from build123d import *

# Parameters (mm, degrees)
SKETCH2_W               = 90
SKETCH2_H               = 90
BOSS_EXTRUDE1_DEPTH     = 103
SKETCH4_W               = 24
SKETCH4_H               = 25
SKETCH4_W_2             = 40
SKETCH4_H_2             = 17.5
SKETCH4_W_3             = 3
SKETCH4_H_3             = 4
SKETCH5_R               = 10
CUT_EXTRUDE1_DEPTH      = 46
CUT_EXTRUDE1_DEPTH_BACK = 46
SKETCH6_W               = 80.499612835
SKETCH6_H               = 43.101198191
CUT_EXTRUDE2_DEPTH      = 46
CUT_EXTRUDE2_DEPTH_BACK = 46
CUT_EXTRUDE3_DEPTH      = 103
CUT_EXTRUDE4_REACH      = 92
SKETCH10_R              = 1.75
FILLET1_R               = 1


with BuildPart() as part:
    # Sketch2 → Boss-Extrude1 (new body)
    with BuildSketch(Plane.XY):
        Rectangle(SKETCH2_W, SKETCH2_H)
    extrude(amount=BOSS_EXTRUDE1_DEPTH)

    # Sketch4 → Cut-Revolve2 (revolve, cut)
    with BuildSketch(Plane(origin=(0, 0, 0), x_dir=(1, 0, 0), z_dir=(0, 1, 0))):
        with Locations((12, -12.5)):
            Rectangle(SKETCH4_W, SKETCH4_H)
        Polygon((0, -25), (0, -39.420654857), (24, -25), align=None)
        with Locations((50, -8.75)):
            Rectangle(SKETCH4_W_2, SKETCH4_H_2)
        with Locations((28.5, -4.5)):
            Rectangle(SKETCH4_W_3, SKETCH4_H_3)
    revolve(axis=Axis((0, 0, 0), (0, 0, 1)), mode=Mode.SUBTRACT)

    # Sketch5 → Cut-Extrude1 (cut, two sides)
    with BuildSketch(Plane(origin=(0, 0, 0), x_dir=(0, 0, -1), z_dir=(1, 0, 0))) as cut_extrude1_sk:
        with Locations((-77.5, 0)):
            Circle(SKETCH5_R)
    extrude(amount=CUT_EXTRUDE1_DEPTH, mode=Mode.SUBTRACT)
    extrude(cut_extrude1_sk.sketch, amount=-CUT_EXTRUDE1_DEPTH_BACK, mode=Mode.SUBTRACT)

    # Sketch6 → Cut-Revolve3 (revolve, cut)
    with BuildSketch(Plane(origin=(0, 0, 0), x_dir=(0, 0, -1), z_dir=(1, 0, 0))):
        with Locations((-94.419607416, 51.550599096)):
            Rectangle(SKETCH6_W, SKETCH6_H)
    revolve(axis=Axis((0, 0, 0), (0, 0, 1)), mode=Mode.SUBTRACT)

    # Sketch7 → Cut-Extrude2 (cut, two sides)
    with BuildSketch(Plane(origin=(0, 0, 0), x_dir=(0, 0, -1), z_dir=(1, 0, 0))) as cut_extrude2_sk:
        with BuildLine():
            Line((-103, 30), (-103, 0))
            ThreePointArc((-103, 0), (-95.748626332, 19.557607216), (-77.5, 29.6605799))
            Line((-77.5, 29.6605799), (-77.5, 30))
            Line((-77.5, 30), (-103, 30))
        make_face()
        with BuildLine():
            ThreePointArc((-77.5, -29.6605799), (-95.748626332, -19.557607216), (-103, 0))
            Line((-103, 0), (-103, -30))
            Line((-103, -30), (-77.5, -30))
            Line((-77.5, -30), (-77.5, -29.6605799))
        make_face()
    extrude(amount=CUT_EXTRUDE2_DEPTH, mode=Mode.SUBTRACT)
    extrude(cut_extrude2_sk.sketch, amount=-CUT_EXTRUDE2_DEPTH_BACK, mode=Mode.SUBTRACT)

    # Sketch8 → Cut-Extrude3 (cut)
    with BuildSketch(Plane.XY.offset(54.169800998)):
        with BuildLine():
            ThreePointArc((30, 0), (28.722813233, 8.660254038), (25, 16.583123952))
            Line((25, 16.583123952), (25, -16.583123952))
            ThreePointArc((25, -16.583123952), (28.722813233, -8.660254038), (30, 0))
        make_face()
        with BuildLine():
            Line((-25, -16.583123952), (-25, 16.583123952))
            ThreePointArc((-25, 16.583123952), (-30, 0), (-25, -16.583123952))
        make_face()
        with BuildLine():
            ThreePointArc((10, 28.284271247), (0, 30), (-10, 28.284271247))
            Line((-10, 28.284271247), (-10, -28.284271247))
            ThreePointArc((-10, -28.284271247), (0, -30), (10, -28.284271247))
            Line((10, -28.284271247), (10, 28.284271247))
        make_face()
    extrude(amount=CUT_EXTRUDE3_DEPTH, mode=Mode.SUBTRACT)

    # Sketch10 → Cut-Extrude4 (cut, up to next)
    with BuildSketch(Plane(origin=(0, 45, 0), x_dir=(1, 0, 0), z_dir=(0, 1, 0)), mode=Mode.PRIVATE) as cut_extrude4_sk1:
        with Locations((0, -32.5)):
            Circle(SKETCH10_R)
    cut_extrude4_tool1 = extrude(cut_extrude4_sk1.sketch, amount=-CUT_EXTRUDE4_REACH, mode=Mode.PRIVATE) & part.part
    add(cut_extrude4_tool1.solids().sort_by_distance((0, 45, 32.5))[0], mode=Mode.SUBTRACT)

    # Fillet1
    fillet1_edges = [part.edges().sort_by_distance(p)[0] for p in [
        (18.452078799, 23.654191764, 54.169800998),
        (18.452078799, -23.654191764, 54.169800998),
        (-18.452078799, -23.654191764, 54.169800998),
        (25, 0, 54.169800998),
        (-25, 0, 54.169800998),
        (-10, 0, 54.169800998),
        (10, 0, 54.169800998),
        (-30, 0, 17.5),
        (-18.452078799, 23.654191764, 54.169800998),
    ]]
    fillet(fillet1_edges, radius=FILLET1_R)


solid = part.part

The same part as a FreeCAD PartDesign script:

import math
import FreeCAD as App
import Part
import Sketcher
Q = App.Units.Quantity


def edges_at(feature, points):
    """Names of the edges that pass closest to the given points."""
    edges = feature.Shape.Edges
    near = lambda p: min(range(len(edges)), key=lambda i: edges[i].distToShape(Part.Vertex(*p))[0])
    return sorted({f"Edge{near(p) + 1}" for p in points})


def add_polygon(sketch, points):
    """Adds a closed chain of lines whose ends are joined by coincident constraints."""
    first, n = sketch.GeometryCount, len(points)
    for a, b in zip(points, points[1:] + points[:1]):
        sketch.addGeometry(Part.LineSegment(App.Vector(*a, 0), App.Vector(*b, 0)), False)
    for i in range(n):
        sketch.addConstraint(Sketcher.Constraint("Coincident", first + i, 2, first + (i + 1) % n, 1))

doc = App.newDocument("Part")
body = doc.addObject("PartDesign::Body", "Body")

# Sketch on XY plane
sketch1 = doc.addObject("Sketcher::SketchObject", "Sketch")
body.addObject(sketch1)
sketch1.AttachmentSupport = (doc.XY_Plane, [""])
sketch1.MapMode = "FlatFace"
add_polygon(sketch1, [(-45, 45), (-45, -45), (45, -45), (45, 45)])  # lines 0-3
sketch1.addConstraint([
    Sketcher.Constraint("Vertical", 0),
    Sketcher.Constraint("Horizontal", 1),
    Sketcher.Constraint("Vertical", 2),
    Sketcher.Constraint("Horizontal", 3),
    Sketcher.Constraint("Symmetric", 0, 2, 2, 2, -1, 1),
    Sketcher.Constraint("Equal", 3, 0),
    Sketcher.Constraint("DistanceX", 1, 1, 1, 2, 90.0),
])
pad1 = doc.addObject("PartDesign::Pad", "Pad")
body.addObject(pad1)
pad1.Profile = sketch1
pad1.Length = 103

# Sketch on XZ plane
sketch2 = doc.addObject("Sketcher::SketchObject", "Sketch001")
body.addObject(sketch2)
sketch2.AttachmentSupport = (doc.XZ_Plane, [""])
sketch2.MapMode = "FlatFace"
add_polygon(sketch2, [(0, 0), (0, 39.4), (24, 25), (24, 0)])  # lines 0-3
add_polygon(sketch2, [(30, 6.5), (30, 17.5), (70, 17.5), (70, 0), (30, 0), (30, 2.5), (27, 2.5), (27, 6.5)])  # lines 4-11
sketch2.addConstraint([
    Sketcher.Constraint("Vertical", 0),
    Sketcher.Constraint("Vertical", 2),
    Sketcher.Constraint("Horizontal", 3),
    Sketcher.Constraint("Vertical", 4),
    Sketcher.Constraint("Horizontal", 5),
    Sketcher.Constraint("Vertical", 6),
    Sketcher.Constraint("Horizontal", 7),
    Sketcher.Constraint("Vertical", 8),
    Sketcher.Constraint("Horizontal", 9),
    Sketcher.Constraint("Vertical", 10),
    Sketcher.Constraint("Horizontal", 11),
    Sketcher.Constraint("Coincident", 3, 2, -1, 1),
    Sketcher.Constraint("PointOnObject", 6, 2, -1),
    Sketcher.Constraint("Vertical", 4, 2, 7, 2),
    Sketcher.Constraint("DistanceX", 3, 2, 3, 1, 24.0),
    Sketcher.Constraint("DistanceX", 5, 1, 5, 2, 40.0),
    Sketcher.Constraint("DistanceX", 9, 2, 9, 1, 3.0),
    Sketcher.Constraint("DistanceY", 2, 2, 2, 1, 25.0),
    Sketcher.Constraint("DistanceY", 4, 1, 4, 2, 11.0),
    Sketcher.Constraint("DistanceY", 10, 1, 10, 2, 4.0),
    Sketcher.Constraint("Angle", 1, Q("-31 deg")),
    Sketcher.Constraint("DistanceY", 6, 2, 6, 1, 17.5),
    Sketcher.Constraint("DistanceX", -1, 1, 4, 2, 30.0),
])
groove = doc.addObject("PartDesign::Groove", "Groove")
body.addObject(groove)
groove.Profile = sketch2
groove.ReferenceAxis = (sketch2, ["V_Axis"])
groove.Angle = 360

# Sketch on YZ plane
sketch3 = doc.addObject("Sketcher::SketchObject", "Sketch002")
body.addObject(sketch3)
sketch3.AttachmentSupport = (doc.YZ_Plane, [""])
sketch3.MapMode = "FlatFace"
sketch3.addGeometry(Part.Circle(App.Vector(0, 78, 0), App.Vector(0, 0, 1), 10), False)
sketch3.addConstraint([
    Sketcher.Constraint("PointOnObject", 0, 3, -2),
    Sketcher.Constraint("Diameter", 0, 20.0),
    Sketcher.Constraint("DistanceY", -1, 1, 0, 3, 77.5),
])
pocket1 = doc.addObject("PartDesign::Pocket", "Pocket")
body.addObject(pocket1)
pocket1.Profile = sketch3
pocket1.Type = "ThroughAll"
pocket1.Midplane = True

# Sketch on YZ plane
sketch4 = doc.addObject("Sketcher::SketchObject", "Sketch003")
body.addObject(sketch4)
sketch4.AttachmentSupport = (doc.YZ_Plane, [""])
sketch4.MapMode = "FlatFace"
add_polygon(sketch4, [(73, 135), (30, 135), (30, 54), (73, 54)])  # lines 0-3
sketch4.addConstraint([
    Sketcher.Constraint("Horizontal", 0),
    Sketcher.Constraint("Vertical", 1),
    Sketcher.Constraint("Horizontal", 2),
    Sketcher.Constraint("Vertical", 3),
    Sketcher.Constraint("DistanceX", -1, 1, 0, 2, 30.0),
    Sketcher.Constraint("DistanceX", 0, 2, 0, 1, 43.101198),
    Sketcher.Constraint("DistanceY", -1, 1, 1, 2, 54.169801),
    Sketcher.Constraint("DistanceY", 1, 2, 1, 1, 80.499613),
])
groove2 = doc.addObject("PartDesign::Groove", "Groove001")
body.addObject(groove2)
groove2.Profile = sketch4
groove2.ReferenceAxis = (sketch4, ["V_Axis"])
groove2.Angle = 360

# Sketch on YZ plane
sketch5 = doc.addObject("Sketcher::SketchObject", "Sketch004")
body.addObject(sketch5)
sketch5.AttachmentSupport = (doc.YZ_Plane, [""])
sketch5.MapMode = "FlatFace"
sketch5.addGeometry([
    Part.LineSegment(App.Vector(30, 103, 0), App.Vector(0, 103, 0)),  # 0
    Part.ArcOfCircle(Part.Circle(App.Vector(0, 73, 0), App.Vector(0, 0, 1), 30), math.radians(9), math.radians(90)),  # 1
    Part.LineSegment(App.Vector(29.66, 77.5, 0), App.Vector(30, 77.5, 0)),  # 2
    Part.LineSegment(App.Vector(30, 77.5, 0), App.Vector(30, 103, 0)),  # 3
    Part.ArcOfCircle(Part.Circle(App.Vector(0, 73, 0), App.Vector(0, 0, 1), 30), math.radians(90), math.radians(171)),  # 4
    Part.LineSegment(App.Vector(0, 103, 0), App.Vector(-30, 103, 0)),  # 5
    Part.LineSegment(App.Vector(-30, 103, 0), App.Vector(-30, 77.5, 0)),  # 6
    Part.LineSegment(App.Vector(-30, 77.5, 0), App.Vector(-29.66, 77.5, 0)),  # 7
], False)
sketch5.addConstraint([
    Sketcher.Constraint("Tangent", 0, 2, 1, 2),
    Sketcher.Constraint("Coincident", 1, 1, 2, 1),
    Sketcher.Constraint("Coincident", 2, 2, 3, 1),
    Sketcher.Constraint("Coincident", 3, 2, 0, 1),
    Sketcher.Constraint("Tangent", 4, 1, 5, 1),
    Sketcher.Constraint("Coincident", 5, 2, 6, 1),
    Sketcher.Constraint("Coincident", 6, 2, 7, 1),
    Sketcher.Constraint("Coincident", 7, 2, 4, 2),
    Sketcher.Constraint("Horizontal", 0),
    Sketcher.Constraint("Horizontal", 2),
    Sketcher.Constraint("Vertical", 3),
    Sketcher.Constraint("Horizontal", 5),
    Sketcher.Constraint("Vertical", 6),
    Sketcher.Constraint("Horizontal", 7),
    Sketcher.Constraint("Coincident", 4, 3, 1, 3),
    Sketcher.Constraint("Equal", 1, 4),
    Sketcher.Constraint("Symmetric", 2, 2, 6, 2, -2),
    Sketcher.Constraint("PointOnObject", 1, 3, -2),
    Sketcher.Constraint("Radius", 1, 30.0),
    Sketcher.Constraint("DistanceX", 0, 2, 0, 1, 30.0),
    Sketcher.Constraint("DistanceY", 3, 1, 3, 2, 25.5),
    Sketcher.Constraint("DistanceY", -1, 1, 1, 3, 73.0),
])
pocket2 = doc.addObject("PartDesign::Pocket", "Pocket001")
body.addObject(pocket2)
pocket2.Profile = sketch5
pocket2.Type = "ThroughAll"
pocket2.Midplane = True

# Sketch on XY plane
sketch6 = doc.addObject("Sketcher::SketchObject", "Sketch005")
body.addObject(sketch6)
sketch6.AttachmentSupport = (doc.XY_Plane, [""])
sketch6.MapMode = "FlatFace"
sketch6.AttachmentOffset = App.Placement(App.Vector(0, 0, 54.169801), App.Rotation())
sketch6.addGeometry([
    Part.ArcOfCircle(Part.Circle(App.Vector(0, 0, 0), App.Vector(0, 0, 1), 30), math.radians(0), math.radians(34)),  # 0
    Part.LineSegment(App.Vector(25, 17, 0), App.Vector(25, -17, 0)),  # 1
    Part.ArcOfCircle(Part.Circle(App.Vector(0, 0, 0), App.Vector(0, 0, 1), 30), math.radians(-34), math.radians(0)),  # 2
    Part.LineSegment(App.Vector(-25, -17, 0), App.Vector(-25, 17, 0)),  # 3
    Part.ArcOfCircle(Part.Circle(App.Vector(0, 0, 0), App.Vector(0, 0, 1), 30), math.radians(146), math.radians(214)),  # 4
    Part.ArcOfCircle(Part.Circle(App.Vector(0, 0, 0), App.Vector(0, 0, 1), 30), math.radians(71), math.radians(109)),  # 5
    Part.LineSegment(App.Vector(-10, 28, 0), App.Vector(-10, -28, 0)),  # 6
    Part.ArcOfCircle(Part.Circle(App.Vector(0, 0, 0), App.Vector(0, 0, 1), 30), math.radians(-109), math.radians(-71)),  # 7
    Part.LineSegment(App.Vector(10, -28, 0), App.Vector(10, 28, 0)),  # 8
], False)
sketch6.addConstraint([
    Sketcher.Constraint("Coincident", 0, 2, 1, 1),
    Sketcher.Constraint("Coincident", 1, 2, 2, 1),
    Sketcher.Constraint("Tangent", 2, 2, 0, 1),
    Sketcher.Constraint("Coincident", 3, 1, 4, 2),
    Sketcher.Constraint("Coincident", 4, 1, 3, 2),
    Sketcher.Constraint("Coincident", 5, 2, 6, 1),
    Sketcher.Constraint("Coincident", 6, 2, 7, 1),
    Sketcher.Constraint("Coincident", 7, 2, 8, 1),
    Sketcher.Constraint("Coincident", 8, 2, 5, 1),
    Sketcher.Constraint("Vertical", 1),
    Sketcher.Constraint("Vertical", 3),
    Sketcher.Constraint("Vertical", 6),
    Sketcher.Constraint("Vertical", 8),
    Sketcher.Constraint("Coincident", 0, 3, -1, 1),
    Sketcher.Constraint("Coincident", 4, 3, -1, 1),
    Sketcher.Constraint("Coincident", 5, 3, -1, 1),
    Sketcher.Constraint("Coincident", 7, 3, -1, 1),
    Sketcher.Constraint("Equal", 0, 2),
    Sketcher.Constraint("Equal", 2, 4),
    Sketcher.Constraint("Equal", 4, 5),
    Sketcher.Constraint("Equal", 5, 7),
    Sketcher.Constraint("PointOnObject", 2, 2, -1),
    Sketcher.Constraint("Horizontal", 1, 2, 3, 1),
    Sketcher.Constraint("Horizontal", 6, 2, 7, 2),
    Sketcher.Constraint("Radius", 0, 30.0),
    Sketcher.Constraint("DistanceX", -1, 1, 0, 2, 25.0),
    Sketcher.Constraint("DistanceX", 5, 2, -1, 1, 10.0),
])
pocket3 = doc.addObject("PartDesign::Pocket", "Pocket002")
body.addObject(pocket3)
pocket3.Profile = sketch6
pocket3.Length = 103
pocket3.Reversed = True

# Sketch on XZ plane
sketch7 = doc.addObject("Sketcher::SketchObject", "Sketch006")
body.addObject(sketch7)
sketch7.AttachmentSupport = (doc.XZ_Plane, [""])
sketch7.MapMode = "FlatFace"
sketch7.AttachmentOffset = App.Placement(App.Vector(0, 0, -45), App.Rotation())
sketch7.addGeometry(Part.Circle(App.Vector(0, 32.5, 0), App.Vector(0, 0, 1), 1.8), False)
sketch7.addConstraint([
    Sketcher.Constraint("PointOnObject", 0, 3, -2),
    Sketcher.Constraint("Diameter", 0, 3.5),
    Sketcher.Constraint("DistanceY", -1, 1, 0, 3, 32.5),
])
pocket4 = doc.addObject("PartDesign::Pocket", "Pocket003")
body.addObject(pocket4)
pocket4.Profile = sketch7
pocket4.Type = "UpToFirst"
pocket4.Reversed = True
doc.recompute()

fillet = doc.addObject("PartDesign::Fillet", "Fillet")
body.addObject(fillet)
fillet.Base = (pocket4, edges_at(pocket4, [
    (18.452, 23.654, 54.17),
    (18.452, -23.654, 54.17),
    (-18.452, -23.654, 54.17),
    (25, 0, 54.17),
    (-25, 0, 54.17),
    (-10, 0, 54.17),
    (10, 0, 54.17),
    (-30, 0, 17.5),
    (-18.452, 23.654, 54.17),
]))
fillet.Radius = 1

doc.recompute()
